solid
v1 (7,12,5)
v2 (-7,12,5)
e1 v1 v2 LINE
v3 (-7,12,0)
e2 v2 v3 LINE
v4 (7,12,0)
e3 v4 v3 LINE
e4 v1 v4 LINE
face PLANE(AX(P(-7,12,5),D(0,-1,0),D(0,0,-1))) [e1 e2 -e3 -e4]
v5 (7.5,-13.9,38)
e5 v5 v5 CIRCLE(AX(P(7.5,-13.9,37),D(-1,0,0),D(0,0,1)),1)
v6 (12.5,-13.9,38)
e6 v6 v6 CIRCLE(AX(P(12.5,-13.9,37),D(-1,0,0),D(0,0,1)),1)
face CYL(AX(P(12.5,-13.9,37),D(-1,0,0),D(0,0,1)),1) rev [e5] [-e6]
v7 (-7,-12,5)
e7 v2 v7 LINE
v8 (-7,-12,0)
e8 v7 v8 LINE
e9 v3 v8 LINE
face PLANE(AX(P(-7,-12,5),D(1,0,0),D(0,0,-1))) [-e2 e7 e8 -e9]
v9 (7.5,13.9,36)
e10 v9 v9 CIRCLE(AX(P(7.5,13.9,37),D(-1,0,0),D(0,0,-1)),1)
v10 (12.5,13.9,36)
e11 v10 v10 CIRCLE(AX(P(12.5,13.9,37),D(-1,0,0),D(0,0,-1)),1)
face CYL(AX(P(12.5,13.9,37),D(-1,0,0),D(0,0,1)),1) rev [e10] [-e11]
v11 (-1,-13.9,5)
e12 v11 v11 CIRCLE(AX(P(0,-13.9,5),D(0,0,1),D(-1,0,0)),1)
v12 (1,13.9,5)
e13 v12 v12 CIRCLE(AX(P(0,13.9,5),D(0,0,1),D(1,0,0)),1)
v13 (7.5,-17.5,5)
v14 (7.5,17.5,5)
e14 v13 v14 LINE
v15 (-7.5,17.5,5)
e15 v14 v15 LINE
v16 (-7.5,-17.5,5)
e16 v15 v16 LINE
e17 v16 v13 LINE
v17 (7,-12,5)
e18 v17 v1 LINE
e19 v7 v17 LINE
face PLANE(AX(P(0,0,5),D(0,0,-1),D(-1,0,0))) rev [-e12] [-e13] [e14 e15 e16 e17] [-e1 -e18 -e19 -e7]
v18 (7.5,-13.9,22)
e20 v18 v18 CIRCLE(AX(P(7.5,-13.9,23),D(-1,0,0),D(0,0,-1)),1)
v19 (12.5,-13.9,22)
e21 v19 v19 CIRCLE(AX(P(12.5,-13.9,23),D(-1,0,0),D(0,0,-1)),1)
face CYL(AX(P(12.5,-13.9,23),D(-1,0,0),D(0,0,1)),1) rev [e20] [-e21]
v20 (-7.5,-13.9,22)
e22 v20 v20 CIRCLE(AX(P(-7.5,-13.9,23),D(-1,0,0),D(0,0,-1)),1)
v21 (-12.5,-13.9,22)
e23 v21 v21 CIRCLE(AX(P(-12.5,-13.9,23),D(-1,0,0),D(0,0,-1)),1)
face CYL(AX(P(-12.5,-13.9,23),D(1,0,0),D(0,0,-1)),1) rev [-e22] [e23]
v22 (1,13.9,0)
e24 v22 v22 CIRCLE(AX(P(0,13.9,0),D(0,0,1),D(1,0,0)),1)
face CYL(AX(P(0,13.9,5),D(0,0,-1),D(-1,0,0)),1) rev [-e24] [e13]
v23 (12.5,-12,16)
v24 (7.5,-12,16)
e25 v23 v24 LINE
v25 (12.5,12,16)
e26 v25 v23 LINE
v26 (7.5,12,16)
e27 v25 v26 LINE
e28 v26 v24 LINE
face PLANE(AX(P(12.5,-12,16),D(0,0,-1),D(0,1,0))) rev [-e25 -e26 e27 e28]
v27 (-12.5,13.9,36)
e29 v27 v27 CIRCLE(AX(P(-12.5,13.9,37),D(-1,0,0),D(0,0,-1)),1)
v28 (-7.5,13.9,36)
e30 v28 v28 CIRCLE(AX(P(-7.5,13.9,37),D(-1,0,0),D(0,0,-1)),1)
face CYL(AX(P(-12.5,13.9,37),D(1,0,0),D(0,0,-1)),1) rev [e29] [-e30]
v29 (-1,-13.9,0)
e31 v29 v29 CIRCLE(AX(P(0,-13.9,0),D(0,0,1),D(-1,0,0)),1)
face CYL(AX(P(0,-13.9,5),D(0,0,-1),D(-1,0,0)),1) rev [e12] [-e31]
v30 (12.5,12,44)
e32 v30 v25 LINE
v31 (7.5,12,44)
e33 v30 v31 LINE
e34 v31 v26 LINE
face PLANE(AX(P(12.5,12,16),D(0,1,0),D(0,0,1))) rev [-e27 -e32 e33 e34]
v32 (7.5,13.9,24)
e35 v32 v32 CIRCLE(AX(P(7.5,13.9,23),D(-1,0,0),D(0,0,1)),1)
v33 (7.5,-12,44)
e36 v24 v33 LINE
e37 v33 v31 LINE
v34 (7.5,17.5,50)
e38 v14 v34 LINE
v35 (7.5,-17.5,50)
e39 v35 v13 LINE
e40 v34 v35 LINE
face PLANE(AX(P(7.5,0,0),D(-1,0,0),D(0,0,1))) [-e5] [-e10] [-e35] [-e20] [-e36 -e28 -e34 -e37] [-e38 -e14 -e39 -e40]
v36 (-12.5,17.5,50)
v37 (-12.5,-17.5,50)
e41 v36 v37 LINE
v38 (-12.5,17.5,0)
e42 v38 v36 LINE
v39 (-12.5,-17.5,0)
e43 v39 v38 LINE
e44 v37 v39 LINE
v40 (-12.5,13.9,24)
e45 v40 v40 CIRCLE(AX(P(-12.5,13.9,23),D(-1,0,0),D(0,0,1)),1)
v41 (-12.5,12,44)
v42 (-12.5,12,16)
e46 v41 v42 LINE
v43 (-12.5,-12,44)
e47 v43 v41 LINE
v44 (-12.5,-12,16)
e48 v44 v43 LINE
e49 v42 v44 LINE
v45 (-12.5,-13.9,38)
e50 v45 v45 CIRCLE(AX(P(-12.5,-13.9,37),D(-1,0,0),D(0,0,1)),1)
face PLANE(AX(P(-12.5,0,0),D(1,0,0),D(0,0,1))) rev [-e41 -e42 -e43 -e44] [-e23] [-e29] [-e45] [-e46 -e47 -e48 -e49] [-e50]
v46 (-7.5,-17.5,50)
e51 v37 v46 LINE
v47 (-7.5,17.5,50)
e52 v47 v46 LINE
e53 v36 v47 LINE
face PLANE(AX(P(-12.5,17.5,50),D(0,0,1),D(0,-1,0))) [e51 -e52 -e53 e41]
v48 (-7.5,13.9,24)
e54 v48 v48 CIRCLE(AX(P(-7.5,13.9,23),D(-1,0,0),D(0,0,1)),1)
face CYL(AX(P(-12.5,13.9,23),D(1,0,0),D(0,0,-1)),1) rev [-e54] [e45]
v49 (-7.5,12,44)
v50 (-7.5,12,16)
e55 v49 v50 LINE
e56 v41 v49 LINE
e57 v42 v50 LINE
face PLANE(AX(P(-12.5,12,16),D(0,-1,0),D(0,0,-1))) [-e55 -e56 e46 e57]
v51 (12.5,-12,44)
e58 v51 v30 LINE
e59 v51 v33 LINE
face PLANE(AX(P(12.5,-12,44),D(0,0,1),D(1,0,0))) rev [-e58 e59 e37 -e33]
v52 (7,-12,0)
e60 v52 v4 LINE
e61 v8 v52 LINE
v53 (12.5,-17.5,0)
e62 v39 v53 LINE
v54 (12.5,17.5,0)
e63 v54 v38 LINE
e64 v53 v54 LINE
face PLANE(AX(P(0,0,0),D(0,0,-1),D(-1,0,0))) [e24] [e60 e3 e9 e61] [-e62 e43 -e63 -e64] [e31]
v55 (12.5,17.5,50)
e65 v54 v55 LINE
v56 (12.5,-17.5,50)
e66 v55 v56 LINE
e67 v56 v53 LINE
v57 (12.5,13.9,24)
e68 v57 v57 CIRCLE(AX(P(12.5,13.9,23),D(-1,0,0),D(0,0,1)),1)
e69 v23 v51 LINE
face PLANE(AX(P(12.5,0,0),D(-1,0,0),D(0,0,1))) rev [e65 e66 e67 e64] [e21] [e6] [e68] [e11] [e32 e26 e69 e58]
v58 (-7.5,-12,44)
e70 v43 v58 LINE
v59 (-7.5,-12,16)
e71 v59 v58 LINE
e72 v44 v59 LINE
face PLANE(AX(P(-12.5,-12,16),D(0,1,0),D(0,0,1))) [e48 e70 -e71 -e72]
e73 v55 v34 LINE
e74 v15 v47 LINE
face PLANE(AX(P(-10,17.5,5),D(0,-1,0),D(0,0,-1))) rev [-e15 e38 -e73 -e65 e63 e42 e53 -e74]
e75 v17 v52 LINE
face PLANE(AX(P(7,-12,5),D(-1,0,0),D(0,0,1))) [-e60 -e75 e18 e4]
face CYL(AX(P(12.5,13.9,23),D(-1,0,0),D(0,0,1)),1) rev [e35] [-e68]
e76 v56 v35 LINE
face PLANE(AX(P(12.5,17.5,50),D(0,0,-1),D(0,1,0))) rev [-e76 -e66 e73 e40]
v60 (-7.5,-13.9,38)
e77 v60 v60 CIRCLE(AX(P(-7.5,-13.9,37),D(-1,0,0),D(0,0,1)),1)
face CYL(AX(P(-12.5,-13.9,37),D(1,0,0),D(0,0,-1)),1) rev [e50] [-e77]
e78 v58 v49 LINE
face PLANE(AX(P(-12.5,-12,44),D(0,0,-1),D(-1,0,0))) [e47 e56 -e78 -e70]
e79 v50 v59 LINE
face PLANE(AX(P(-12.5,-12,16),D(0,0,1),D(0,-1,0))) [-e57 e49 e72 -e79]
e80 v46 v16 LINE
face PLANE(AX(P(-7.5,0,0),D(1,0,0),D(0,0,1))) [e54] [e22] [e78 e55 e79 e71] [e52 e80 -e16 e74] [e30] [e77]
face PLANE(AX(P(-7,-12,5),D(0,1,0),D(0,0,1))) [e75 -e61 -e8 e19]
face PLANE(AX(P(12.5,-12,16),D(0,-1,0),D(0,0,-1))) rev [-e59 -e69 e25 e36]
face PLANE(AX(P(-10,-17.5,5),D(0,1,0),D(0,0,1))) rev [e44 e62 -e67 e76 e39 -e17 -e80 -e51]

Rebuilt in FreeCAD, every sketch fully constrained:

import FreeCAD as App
import Part
import Sketcher
from FreeCAD import Vector
Q = App.Units.Quantity


def add_polygon(sketch, points):
    """Adds a closed chain of lines whose ends are joined by coincident constraints."""
    first, n = sketch.GeometryCount, len(points)
    for a, b in zip(points, points[1:] + points[:1]):
        sketch.addGeometry(Part.LineSegment(App.Vector(*a, 0), App.Vector(*b, 0)), False)
    for i in range(n):
        sketch.addConstraint(Sketcher.Constraint("Coincident", first + i, 2, first + (i + 1) % n, 1))

doc = App.newDocument("Part")
body = doc.addObject("PartDesign::Body", "Body")

sketch1 = body.newObject("Sketcher::SketchObject", "Sketch")
sketch1.AttachmentSupport = (doc.getObject("XY_Plane"), [""])
sketch1.MapMode = "FlatFace"
add_polygon(sketch1, [(-10, 17.5), (-10, -17.5), (10, -17.5), (10, 17.5)])
sketch1.addGeometry(Part.Circle(Vector(0, -13.9, 0), Vector(0, 0, 1), 1), False)
add_polygon(sketch1, [(7, -12), (-7, -12), (-7, 12), (7, 12)])
sketch1.addGeometry(Part.Circle(Vector(0, 13.9, 0), Vector(0, 0, 1), 1), False)
sketch1.addConstraint([
    Sketcher.Constraint("Vertical", 0),
    Sketcher.Constraint("Horizontal", 1),
    Sketcher.Constraint("Vertical", 2),
    Sketcher.Constraint("Horizontal", 3),
    Sketcher.Constraint("Horizontal", 5),
    Sketcher.Constraint("Vertical", 6),
    Sketcher.Constraint("Horizontal", 7),
    Sketcher.Constraint("Vertical", 8),
    Sketcher.Constraint("Equal", 4, 9),
    Sketcher.Constraint("Symmetric", 4, 3, 9, 3, -1, 1),
    Sketcher.Constraint("Symmetric", 0, 2, 2, 2, -1, 1),
    Sketcher.Constraint("Symmetric", 5, 2, 7, 2, -1, 1),
    Sketcher.Constraint("PointOnObject", 4, 3, -2),
    Sketcher.Constraint("Diameter", 4, Q("2 mm")),
    Sketcher.Constraint("DistanceX", 1, 1, 1, 2, Q("20 mm")),
    Sketcher.Constraint("DistanceX", 5, 2, 5, 1, Q("14 mm")),
    Sketcher.Constraint("DistanceY", 0, 2, 0, 1, Q("35 mm")),
    Sketcher.Constraint("DistanceY", 6, 1, 6, 2, Q("24 mm")),
    Sketcher.Constraint("DistanceY", 4, 3, -1, 1, Q("13.9 mm")),
])
pad1 = body.newObject("PartDesign::Pad", "Pad")
pad1.Profile = sketch1
pad1.Length = 5

sketch2 = body.newObject("Sketcher::SketchObject", "Sketch001")
sketch2.AttachmentSupport = (doc.getObject("YZ_Plane"), [""])
sketch2.MapMode = "FlatFace"
sketch2.AttachmentOffset = App.Placement(Vector(0, 0, 10), App.Rotation())
add_polygon(sketch2, [(18, 50), (-18, 50), (-18, 0), (18, 0)])
sketch2.addConstraint([
    Sketcher.Constraint("Horizontal", 0),
    Sketcher.Constraint("Vertical", 1),
    Sketcher.Constraint("Horizontal", 2),
    Sketcher.Constraint("Vertical", 3),
    Sketcher.Constraint("Symmetric", 1, 2, 2, 2, -1, 1),
    Sketcher.Constraint("DistanceX", 0, 2, 0, 1, Q("35 mm")),
    Sketcher.Constraint("DistanceY", 1, 2, 1, 1, Q("50 mm")),
])
pad2 = body.newObject("PartDesign::Pad", "Pad001")
pad2.Profile = sketch2
pad2.Length = 5
pad2.Midplane = True

sketch3 = body.newObject("Sketcher::SketchObject", "Sketch002")
sketch3.AttachmentSupport = (doc.getObject("YZ_Plane"), [""])
sketch3.MapMode = "FlatFace"
sketch3.AttachmentOffset = App.Placement(Vector(0, 0, 7.5), App.Rotation())
sketch3.addGeometry(Part.Circle(Vector(13.9, 23, 0), Vector(0, 0, 1), 1), False)
sketch3.addGeometry(Part.Circle(Vector(13.9, 37, 0), Vector(0, 0, 1), 1), False)
sketch3.addGeometry(Part.Circle(Vector(-13.9, 37, 0), Vector(0, 0, 1), 1), False)
sketch3.addGeometry(Part.Circle(Vector(-13.9, 23, 0), Vector(0, 0, 1), 1), False)
add_polygon(sketch3, [(12, 16), (-12, 16), (-12, 44), (12, 44)])
sketch3.addConstraint([
    Sketcher.Constraint("Horizontal", 4),
    Sketcher.Constraint("Vertical", 5),
    Sketcher.Constraint("Horizontal", 6),
    Sketcher.Constraint("Vertical", 7),
    Sketcher.Constraint("Equal", 0, 1),
    Sketcher.Constraint("Equal", 1, 2),
    Sketcher.Constraint("Equal", 2, 3),
    Sketcher.Constraint("Symmetric", 1, 3, 2, 3, -2),
    Sketcher.Constraint("Symmetric", 0, 3, 3, 3, -2),
    Sketcher.Constraint("Vertical", 0, 3, 1, 3),
    Sketcher.Constraint("Diameter", 0, Q("2 mm")),
    Sketcher.Constraint("DistanceX", 4, 2, 4, 1, Q("24 mm")),
    Sketcher.Constraint("DistanceY", 5, 1, 5, 2, Q("28 mm")),
    Sketcher.Constraint("DistanceY", -1, 1, 0, 3, Q("23 mm")),
    Sketcher.Constraint("DistanceY", -1, 1, 1, 3, Q("37 mm")),
    Sketcher.Constraint("DistanceX", 4, 2, -1, 1, Q("12 mm")),
    Sketcher.Constraint("DistanceY", -1, 1, 4, 2, Q("16 mm")),
    Sketcher.Constraint("DistanceX", -1, 1, 0, 3, Q("13.9 mm")),
])
pocket1 = body.newObject("PartDesign::Pocket", "Pocket")
pocket1.Profile = sketch3
pocket1.Length = 5
pocket1.Reversed = True
doc.recompute()

mirrored = body.newObject("PartDesign::Mirrored", "Mirrored")
mirrored.Originals = [pad2, pocket1]
mirrored.MirrorPlane = (doc.getObject("YZ_Plane"), [""])
body.Tip = mirrored

doc.recompute()
